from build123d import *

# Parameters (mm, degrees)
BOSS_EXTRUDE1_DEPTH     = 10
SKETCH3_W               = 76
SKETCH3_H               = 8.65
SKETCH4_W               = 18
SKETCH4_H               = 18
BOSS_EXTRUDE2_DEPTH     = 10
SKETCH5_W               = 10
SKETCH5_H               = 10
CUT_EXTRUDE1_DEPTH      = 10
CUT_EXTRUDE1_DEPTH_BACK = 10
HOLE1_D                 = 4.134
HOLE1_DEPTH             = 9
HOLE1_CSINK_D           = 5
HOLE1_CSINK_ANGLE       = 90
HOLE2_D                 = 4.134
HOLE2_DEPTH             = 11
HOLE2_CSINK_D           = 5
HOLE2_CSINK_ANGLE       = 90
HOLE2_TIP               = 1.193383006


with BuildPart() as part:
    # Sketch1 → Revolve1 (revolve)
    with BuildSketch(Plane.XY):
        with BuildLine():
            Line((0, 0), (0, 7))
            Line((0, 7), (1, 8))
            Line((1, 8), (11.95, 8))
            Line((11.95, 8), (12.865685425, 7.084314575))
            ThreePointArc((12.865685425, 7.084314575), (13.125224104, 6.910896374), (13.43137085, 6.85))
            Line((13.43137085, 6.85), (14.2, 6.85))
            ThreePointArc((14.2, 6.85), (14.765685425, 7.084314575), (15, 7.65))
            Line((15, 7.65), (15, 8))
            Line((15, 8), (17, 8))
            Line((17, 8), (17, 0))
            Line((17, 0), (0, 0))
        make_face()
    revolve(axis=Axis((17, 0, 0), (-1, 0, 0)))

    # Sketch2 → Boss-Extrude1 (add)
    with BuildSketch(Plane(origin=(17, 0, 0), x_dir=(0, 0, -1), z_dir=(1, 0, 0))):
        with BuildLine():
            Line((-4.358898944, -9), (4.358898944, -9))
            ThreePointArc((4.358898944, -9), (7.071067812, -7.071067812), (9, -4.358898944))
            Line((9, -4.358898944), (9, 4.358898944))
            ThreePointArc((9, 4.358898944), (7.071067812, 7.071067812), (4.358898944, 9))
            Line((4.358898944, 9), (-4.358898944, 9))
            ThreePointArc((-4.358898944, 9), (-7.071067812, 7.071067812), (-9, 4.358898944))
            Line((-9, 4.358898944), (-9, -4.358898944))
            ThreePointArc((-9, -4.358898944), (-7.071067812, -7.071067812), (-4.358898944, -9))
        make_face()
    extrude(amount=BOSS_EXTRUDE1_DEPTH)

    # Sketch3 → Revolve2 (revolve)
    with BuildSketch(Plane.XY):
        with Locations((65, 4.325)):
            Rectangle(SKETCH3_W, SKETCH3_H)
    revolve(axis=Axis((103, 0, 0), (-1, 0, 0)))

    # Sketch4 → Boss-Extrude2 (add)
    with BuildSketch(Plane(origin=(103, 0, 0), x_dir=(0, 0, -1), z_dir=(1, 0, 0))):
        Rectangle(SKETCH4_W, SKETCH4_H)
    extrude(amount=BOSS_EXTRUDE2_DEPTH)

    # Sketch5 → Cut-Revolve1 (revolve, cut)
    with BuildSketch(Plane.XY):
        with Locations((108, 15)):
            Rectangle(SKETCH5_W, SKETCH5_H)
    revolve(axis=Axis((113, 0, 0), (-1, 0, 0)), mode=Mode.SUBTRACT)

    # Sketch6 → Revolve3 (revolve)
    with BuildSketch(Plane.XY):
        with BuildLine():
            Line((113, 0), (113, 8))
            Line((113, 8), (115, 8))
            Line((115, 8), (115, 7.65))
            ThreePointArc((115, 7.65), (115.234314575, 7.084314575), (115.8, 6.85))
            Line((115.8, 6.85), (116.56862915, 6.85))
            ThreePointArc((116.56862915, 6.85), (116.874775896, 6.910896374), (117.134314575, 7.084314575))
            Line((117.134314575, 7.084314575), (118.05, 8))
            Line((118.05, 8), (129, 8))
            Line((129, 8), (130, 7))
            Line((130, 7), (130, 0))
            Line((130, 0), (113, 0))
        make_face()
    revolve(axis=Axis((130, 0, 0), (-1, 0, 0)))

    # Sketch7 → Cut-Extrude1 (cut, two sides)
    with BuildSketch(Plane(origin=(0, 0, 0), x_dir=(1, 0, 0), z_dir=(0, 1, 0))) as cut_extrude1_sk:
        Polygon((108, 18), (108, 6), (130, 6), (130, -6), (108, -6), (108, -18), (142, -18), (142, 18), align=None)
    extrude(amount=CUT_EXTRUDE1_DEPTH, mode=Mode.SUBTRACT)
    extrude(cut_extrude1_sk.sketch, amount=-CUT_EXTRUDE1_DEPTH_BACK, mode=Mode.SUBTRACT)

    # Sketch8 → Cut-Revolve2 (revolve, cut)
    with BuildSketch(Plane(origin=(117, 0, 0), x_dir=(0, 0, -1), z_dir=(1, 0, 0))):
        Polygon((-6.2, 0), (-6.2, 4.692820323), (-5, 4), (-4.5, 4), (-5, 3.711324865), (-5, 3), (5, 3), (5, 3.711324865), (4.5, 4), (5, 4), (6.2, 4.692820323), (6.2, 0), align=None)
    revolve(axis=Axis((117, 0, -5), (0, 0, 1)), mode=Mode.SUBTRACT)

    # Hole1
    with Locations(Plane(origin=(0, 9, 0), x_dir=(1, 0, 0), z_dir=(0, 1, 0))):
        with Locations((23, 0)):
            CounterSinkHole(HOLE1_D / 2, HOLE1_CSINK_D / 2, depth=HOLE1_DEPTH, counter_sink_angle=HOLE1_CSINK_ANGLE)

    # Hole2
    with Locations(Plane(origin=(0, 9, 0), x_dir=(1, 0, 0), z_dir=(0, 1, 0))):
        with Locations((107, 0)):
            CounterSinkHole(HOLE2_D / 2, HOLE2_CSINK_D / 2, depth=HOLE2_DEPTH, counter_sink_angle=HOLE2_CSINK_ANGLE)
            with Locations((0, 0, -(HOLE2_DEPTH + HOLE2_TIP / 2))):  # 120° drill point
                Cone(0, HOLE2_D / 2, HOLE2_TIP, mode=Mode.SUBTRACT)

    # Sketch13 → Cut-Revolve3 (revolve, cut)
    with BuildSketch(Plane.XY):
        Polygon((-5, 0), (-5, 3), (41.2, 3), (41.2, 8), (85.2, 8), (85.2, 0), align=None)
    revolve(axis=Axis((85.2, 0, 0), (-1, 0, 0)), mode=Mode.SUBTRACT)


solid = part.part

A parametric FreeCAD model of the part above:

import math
import FreeCAD as App
import Part
import Sketcher
from FreeCAD import Vector
Q = App.Units.Quantity


def add_polygon(sketch, points):
    """Adds a closed chain of lines whose ends are joined by coincident constraints."""
    first, n = sketch.GeometryCount, len(points)
    for a, b in zip(points, points[1:] + points[:1]):
        sketch.addGeometry(Part.LineSegment(App.Vector(*a, 0), App.Vector(*b, 0)), False)
    for i in range(n):
        sketch.addConstraint(Sketcher.Constraint("Coincident", first + i, 2, first + (i + 1) % n, 1))

doc = App.newDocument("Part")
params = doc.addObject("Spreadsheet::Sheet", "Params")
for row, (alias, value) in enumerate([
    ("sketch1_radius", "0.8 mm"),
    ("sketch1_width", "17 mm"),
    ("sketch1_width2", "2 mm"),
    ("sketch1_height", "7 mm"),
    ("sketch1_height2", "8 mm"),
    ("revolution_angle", "360 deg"),
    ("sketch2_radius", "10 mm"),
    ("pad1_length", "10 mm"),
    ("sketch3_width", "76 mm"),
    ("sketch3_height", "8.65 mm"),
    ("revolution2_angle", "360 deg"),
    ("sketch4_width", "18 mm"),
    ("pad2_length", "10 mm"),
    ("sketch5_width", "10 mm"),
    ("groove_angle", "360 deg"),
    ("sketch6_radius", "0.8 mm"),
    ("sketch6_width", "17 mm"),
    ("sketch6_width2", "2 mm"),
    ("sketch6_height", "8 mm"),
    ("sketch6_height2", "7 mm"),
    ("revolution3_angle", "360 deg"),
    ("sketch7_width", "22 mm"),
    ("sketch7_width2", "34 mm"),
    ("sketch7_height", "12 mm"),
    ("sketch8_height", "10 mm"),
    ("sketch8_height2", "12.4 mm"),
    ("sketch8_height3", "0.5 mm"),
    ("groove2_angle", "360 deg"),
    ("hole_diameter", "4.134 mm"),
    ("hole_depth", "9 mm"),
    ("hole_csink_diameter", "5 mm"),
    ("hole2_diameter", "4.134 mm"),
    ("hole2_depth", "11 mm"),
    ("hole2_csink_diameter", "5 mm"),
    ("sketch11_width", "44 mm"),
    ("sketch11_height", "3 mm"),
    ("sketch11_height2", "8 mm"),
    ("sketch11_width2", "90.2 mm"),
    ("groove3_angle", "360 deg"),
], start=1):
    params.set(f"A{row}", alias)
    params.set(f"B{row}", "=" + value)
    params.setAlias(f"B{row}", alias)

body = doc.addObject("PartDesign::Body", "Body")

sketch1 = body.newObject("Sketcher::SketchObject", "Sketch")
sketch1.AttachmentSupport = (doc.getObject("XY_Plane"), [""])
sketch1.MapMode = "FlatFace"
sketch1.addGeometry([
    Part.LineSegment(Vector(0, 7, 0), Vector(0, 0, 0)),
    Part.LineSegment(Vector(0, 0, 0), Vector(17, 0, 0)),
    Part.LineSegment(Vector(17, 0, 0), Vector(17, 8, 0)),
    Part.LineSegment(Vector(17, 8, 0), Vector(15, 8, 0)),
    Part.LineSegment(Vector(15, 8, 0), Vector(15, 7.65, 0)),
    Part.ArcOfCircle(Part.Circle(Vector(14.2, 7.65, 0), Vector(0, 0, 1), 0.8), math.radians(-90), math.radians(0)),
    Part.LineSegment(Vector(14.2, 6.85, 0), Vector(13.43, 6.85, 0)),
    Part.ArcOfCircle(Part.Circle(Vector(13.43, 7.65, 0), Vector(0, 0, 1), 0.8), math.radians(-135), math.radians(-90)),
    Part.LineSegment(Vector(12.87, 7.08, 0), Vector(11.95, 8, 0)),
    Part.LineSegment(Vector(11.95, 8, 0), Vector(1, 8, 0)),
    Part.LineSegment(Vector(1, 8, 0), Vector(0, 7, 0)),
], False)
sketch1.addConstraint([
    Sketcher.Constraint("Coincident", 0, 2, 1, 1),
    Sketcher.Constraint("Coincident", 1, 2, 2, 1),
    Sketcher.Constraint("Coincident", 2, 2, 3, 1),
    Sketcher.Constraint("Coincident", 3, 2, 4, 1),
    Sketcher.Constraint("Tangent", 4, 2, 5, 2),
    Sketcher.Constraint("Tangent", 5, 1, 6, 1),
    Sketcher.Constraint("Tangent", 6, 2, 7, 2),
    Sketcher.Constraint("Tangent", 7, 1, 8, 1),
    Sketcher.Constraint("Coincident", 8, 2, 9, 1),
    Sketcher.Constraint("Coincident", 9, 2, 10, 1),
    Sketcher.Constraint("Coincident", 10, 2, 0, 1),
    Sketcher.Constraint("Vertical", 0),
    Sketcher.Constraint("Horizontal", 1),
    Sketcher.Constraint("Vertical", 2),
    Sketcher.Constraint("Horizontal", 3),
    Sketcher.Constraint("Vertical", 4),
    Sketcher.Constraint("Horizontal", 6),
    Sketcher.Constraint("Horizontal", 9),
    Sketcher.Constraint("Coincident", 0, 2, -1, 1),
    Sketcher.Constraint("Equal", 5, 7),
    Sketcher.Constraint("Perpendicular", 8, 10),
    Sketcher.Constraint("Horizontal", 3, 2, 8, 2),
    Sketcher.Constraint("Radius", 5, Q("0.8 mm")),
    Sketcher.Constraint("DistanceX", 1, 1, 1, 2, Q("17 mm")),
    Sketcher.Constraint("DistanceX", 3, 2, 3, 1, Q("2 mm")),
    Sketcher.Constraint("DistanceY", 0, 2, 0, 1, Q("7 mm")),
    Sketcher.Constraint("DistanceY", 2, 1, 2, 2, Q("8 mm")),
    Sketcher.Constraint("Angle", 8, Q("135 deg")),
    Sketcher.Constraint("DistanceX", 9, 2, 9, 1, Q("10.95 mm")),
    Sketcher.Constraint("DistanceY", 4, 2, 4, 1, Q("0.35 mm")),
])
sketch1.setExpression("Constraints[22]", "Params.sketch1_radius")
sketch1.setExpression("Constraints[23]", "Params.sketch1_width")
sketch1.setExpression("Constraints[24]", "Params.sketch1_width2")
sketch1.setExpression("Constraints[25]", "Params.sketch1_height")
sketch1.setExpression("Constraints[26]", "Params.sketch1_height2")
revolution = body.newObject("PartDesign::Revolution", "Revolution")
revolution.Profile = sketch1
revolution.ReferenceAxis = (sketch1, ["H_Axis"])
revolution.setExpression("Angle", "Params.revolution_angle")

sketch2 = body.newObject("Sketcher::SketchObject", "Sketch001")
sketch2.AttachmentSupport = (doc.getObject("YZ_Plane"), [""])
sketch2.MapMode = "FlatFace"
sketch2.AttachmentOffset = App.Placement(Vector(0, 0, 17), App.Rotation())
sketch2.addGeometry([
    Part.LineSegment(Vector(-9, 4, 0), Vector(-9, -4, 0)),
    Part.ArcOfCircle(Part.Circle(Vector(0, 0, 0), Vector(0, 0, 1), 10), math.radians(-154), math.radians(-116)),
    Part.LineSegment(Vector(-4, -9, 0), Vector(4, -9, 0)),
    Part.ArcOfCircle(Part.Circle(Vector(0, 0, 0), Vector(0, 0, 1), 10), math.radians(-64), math.radians(-26)),
    Part.LineSegment(Vector(9, -4, 0), Vector(9, 4, 0)),
    Part.ArcOfCircle(Part.Circle(Vector(0, 0, 0), Vector(0, 0, 1), 10), math.radians(26), math.radians(64)),
    Part.LineSegment(Vector(4, 9, 0), Vector(-4, 9, 0)),
    Part.ArcOfCircle(Part.Circle(Vector(0, 0, 0), Vector(0, 0, 1), 10), math.radians(116), math.radians(154)),
], False)
sketch2.addConstraint([
    Sketcher.Constraint("Coincident", 0, 2, 1, 1),
    Sketcher.Constraint("Coincident", 1, 2, 2, 1),
    Sketcher.Constraint("Coincident", 2, 2, 3, 1),
    Sketcher.Constraint("Coincident", 3, 2, 4, 1),
    Sketcher.Constraint("Coincident", 4, 2, 5, 1),
    Sketcher.Constraint("Coincident", 5, 2, 6, 1),
    Sketcher.Constraint("Coincident", 6, 2, 7, 1),
    Sketcher.Constraint("Coincident", 7, 2, 0, 1),
    Sketcher.Constraint("Vertical", 0),
    Sketcher.Constraint("Horizontal", 2),
    Sketcher.Constraint("Vertical", 4),
    Sketcher.Constraint("Horizontal", 6),
    Sketcher.Constraint("Coincident", 1, 3, -1, 1),
    Sketcher.Constraint("Coincident", 3, 3, -1, 1),
    Sketcher.Constraint("Coincident", 5, 3, -1, 1),
    Sketcher.Constraint("Coincident", 7, 3, -1, 1),
    Sketcher.Constraint("Equal", 1, 3),
    Sketcher.Constraint("Equal", 3, 5),
    Sketcher.Constraint("Equal", 5, 7),
    Sketcher.Constraint("Horizontal", 0, 2, 3, 2),
    Sketcher.Constraint("Vertical", 2, 2, 5, 2),
    Sketcher.Constraint("Equal", 6, 0),
    Sketcher.Constraint("Radius", 1, Q("10 mm")),
    Sketcher.Constraint("DistanceX", 0, 2, -1, 1, Q("9 mm")),
])
sketch2.setExpression("Constraints[22]", "Params.sketch2_radius")
pad1 = body.newObject("PartDesign::Pad", "Pad")
pad1.Profile = sketch2
pad1.setExpression("Length", "Params.pad1_length")

sketch3 = body.newObject("Sketcher::SketchObject", "Sketch002")
sketch3.AttachmentSupport = (doc.getObject("XY_Plane"), [""])
sketch3.MapMode = "FlatFace"
add_polygon(sketch3, [(27, 9), (27, 0), (103, 0), (103, 9)])
sketch3.addConstraint([
    Sketcher.Constraint("Vertical", 0),
    Sketcher.Constraint("Horizontal", 1),
    Sketcher.Constraint("Vertical", 2),
    Sketcher.Constraint("Horizontal", 3),
    Sketcher.Constraint("PointOnObject", 0, 2, -1),
    Sketcher.Constraint("DistanceX", 1, 1, 1, 2, Q("76 mm")),
    Sketcher.Constraint("DistanceX", -1, 1, 0, 2, Q("27 mm")),
    Sketcher.Constraint("DistanceY", 0, 2, 0, 1, Q("8.65 mm")),
])
sketch3.setExpression("Constraints[9]", "Params.sketch3_width")
sketch3.setExpression("Constraints[11]", "Params.sketch3_height")
revolution2 = body.newObject("PartDesign::Revolution", "Revolution001")
revolution2.Profile = sketch3
revolution2.ReferenceAxis = (sketch3, ["H_Axis"])
revolution2.setExpression("Angle", "Params.revolution2_angle")

sketch4 = body.newObject("Sketcher::SketchObject", "Sketch003")
sketch4.AttachmentSupport = (doc.getObject("YZ_Plane"), [""])
sketch4.MapMode = "FlatFace"
sketch4.AttachmentOffset = App.Placement(Vector(0, 0, 103), App.Rotation())
add_polygon(sketch4, [(9, 9), (-9, 9), (-9, -9), (9, -9)])
sketch4.addConstraint([
    Sketcher.Constraint("Horizontal", 0),
    Sketcher.Constraint("Vertical", 1),
    Sketcher.Constraint("Horizontal", 2),
    Sketcher.Constraint("Vertical", 3),
    Sketcher.Constraint("Symmetric", 0, 2, 2, 2, -1, 1),
    Sketcher.Constraint("Equal", 2, 1),
    Sketcher.Constraint("DistanceX", 0, 2, 0, 1, Q("18 mm")),
])
sketch4.setExpression("Constraints[10]", "Params.sketch4_width")
pad2 = body.newObject("PartDesign::Pad", "Pad001")
pad2.Profile = sketch4
pad2.setExpression("Length", "Params.pad2_length")

sketch5 = body.newObject("Sketcher::SketchObject", "Sketch004")
sketch5.AttachmentSupport = (doc.getObject("XY_Plane"), [""])
sketch5.MapMode = "FlatFace"
add_polygon(sketch5, [(103, 20), (103, 10), (113, 10), (113, 20)])
sketch5.addConstraint([
    Sketcher.Constraint("Vertical", 0),
    Sketcher.Constraint("Horizontal", 1),
    Sketcher.Constraint("Vertical", 2),
    Sketcher.Constraint("Horizontal", 3),
    Sketcher.Constraint("Equal", 3, 0),
    Sketcher.Constraint("DistanceX", 1, 1, 1, 2, Q("10 mm")),
    Sketcher.Constraint("DistanceX", -1, 1, 0, 2, Q("103 mm")),
    Sketcher.Constraint("DistanceY", -1, 1, 0, 2, Q("10 mm")),
])
sketch5.setExpression("Constraints[9]", "Params.sketch5_width")
groove = body.newObject("PartDesign::Groove", "Groove")
groove.Profile = sketch5
groove.ReferenceAxis = (sketch5, ["H_Axis"])
groove.setExpression("Angle", "Params.groove_angle")

sketch6 = body.newObject("Sketcher::SketchObject", "Sketch005")
sketch6.AttachmentSupport = (doc.getObject("XY_Plane"), [""])
sketch6.MapMode = "FlatFace"
sketch6.addGeometry([
    Part.LineSegment(Vector(113, 8, 0), Vector(113, 0, 0)),
    Part.LineSegment(Vector(113, 0, 0), Vector(130, 0, 0)),
    Part.LineSegment(Vector(130, 0, 0), Vector(130, 7, 0)),
    Part.LineSegment(Vector(130, 7, 0), Vector(129, 8, 0)),
    Part.LineSegment(Vector(129, 8, 0), Vector(118.05, 8, 0)),
    Part.LineSegment(Vector(118.05, 8, 0), Vector(117.13, 7.08, 0)),
    Part.ArcOfCircle(Part.Circle(Vector(116.57, 7.65, 0), Vector(0, 0, 1), 0.8), math.radians(-90), math.radians(-45)),
    Part.LineSegment(Vector(116.57, 6.85, 0), Vector(115.8, 6.85, 0)),
    Part.ArcOfCircle(Part.Circle(Vector(115.8, 7.65, 0), Vector(0, 0, 1), 0.8), math.radians(180), math.radians(270)),
    Part.LineSegment(Vector(115, 7.65, 0), Vector(115, 8, 0)),
    Part.LineSegment(Vector(115, 8, 0), Vector(113, 8, 0)),
], False)
sketch6.addConstraint([
    Sketcher.Constraint("Coincident", 0, 2, 1, 1),
    Sketcher.Constraint("Coincident", 1, 2, 2, 1),
    Sketcher.Constraint("Coincident", 2, 2, 3, 1),
    Sketcher.Constraint("Coincident", 3, 2, 4, 1),
    Sketcher.Constraint("Coincident", 4, 2, 5, 1),
    Sketcher.Constraint("Tangent", 5, 2, 6, 2),
    Sketcher.Constraint("Tangent", 6, 1, 7, 1),
    Sketcher.Constraint("Tangent", 7, 2, 8, 2),
    Sketcher.Constraint("Tangent", 8, 1, 9, 1),
    Sketcher.Constraint("Coincident", 9, 2, 10, 1),
    Sketcher.Constraint("Coincident", 10, 2, 0, 1),
    Sketcher.Constraint("Vertical", 0),
    Sketcher.Constraint("Horizontal", 1),
    Sketcher.Constraint("Vertical", 2),
    Sketcher.Constraint("Horizontal", 4),
    Sketcher.Constraint("Horizontal", 7),
    Sketcher.Constraint("Vertical", 9),
    Sketcher.Constraint("Horizontal", 10),
    Sketcher.Constraint("Equal", 6, 8),
    Sketcher.Constraint("PointOnObject", 0, 2, -1),
    Sketcher.Constraint("Perpendicular", 3, 5),
    Sketcher.Constraint("Horizontal", 4, 2, 9, 2),
    Sketcher.Constraint("Radius", 6, Q("0.8 mm")),
    Sketcher.Constraint("DistanceX", 1, 1, 1, 2, Q("17 mm")),
    Sketcher.Constraint("DistanceX", 10, 2, 10, 1, Q("2 mm")),
    Sketcher.Constraint("DistanceY", 0, 2, 0, 1, Q("8 mm")),
    Sketcher.Constraint("DistanceY", 2, 1, 2, 2, Q("7 mm")),
    Sketcher.Constraint("Angle", 3, Q("135 deg")),
    Sketcher.Constraint("DistanceX", -1, 1, 0, 2, Q("113 mm")),
    Sketcher.Constraint("DistanceX", 4, 2, 4, 1, Q("10.95 mm")),
    Sketcher.Constraint("DistanceY", 9, 1, 9, 2, Q("0.35 mm")),
])
sketch6.setExpression("Constraints[22]", "Params.sketch6_radius")
sketch6.setExpression("Constraints[23]", "Params.sketch6_width")
sketch6.setExpression("Constraints[24]", "Params.sketch6_width2")
sketch6.setExpression("Constraints[25]", "Params.sketch6_height")
sketch6.setExpression("Constraints[26]", "Params.sketch6_height2")
revolution3 = body.newObject("PartDesign::Revolution", "Revolution002")
revolution3.Profile = sketch6
revolution3.ReferenceAxis = (sketch6, ["H_Axis"])
revolution3.setExpression("Angle", "Params.revolution3_angle")

sketch7 = body.newObject("Sketcher::SketchObject", "Sketch006")
sketch7.AttachmentSupport = (doc.getObject("XZ_Plane"), [""])
sketch7.MapMode = "FlatFace"
add_polygon(sketch7, [(108, -18), (108, -6), (130, -6), (130, 6), (108, 6), (108, 18), (142, 18), (142, -18)])
sketch7.addConstraint([
    Sketcher.Constraint("Vertical", 0),
    Sketcher.Constraint("Horizontal", 1),
    Sketcher.Constraint("Vertical", 2),
    Sketcher.Constraint("Horizontal", 3),
    Sketcher.Constraint("Vertical", 4),
    Sketcher.Constraint("Horizontal", 5),
    Sketcher.Constraint("Vertical", 6),
    Sketcher.Constraint("Horizontal", 7),
    Sketcher.Constraint("Symmetric", 0, 2, 3, 2, -1),
    Sketcher.Constraint("Equal", 0, 2),
    Sketcher.Constraint("Equal", 2, 4),
    Sketcher.Constraint("DistanceX", 1, 1, 1, 2, Q("22 mm")),
    Sketcher.Constraint("DistanceX", 5, 1, 5, 2, Q("34 mm")),
    Sketcher.Constraint("DistanceY", 0, 1, 0, 2, Q("12 mm")),
    Sketcher.Constraint("DistanceX", -1, 1, 0, 2, Q("108 mm")),
])
sketch7.setExpression("Constraints[19]", "Params.sketch7_width")
sketch7.setExpression("Constraints[20]", "Params.sketch7_width2")
sketch7.setExpression("Constraints[21]", "Params.sketch7_height")
pocket1 = body.newObject("PartDesign::Pocket", "Pocket")
pocket1.Profile = sketch7
pocket1.Type = "ThroughAll"
pocket1.Midplane = True

sketch8 = body.newObject("Sketcher::SketchObject", "Sketch007")
sketch8.AttachmentSupport = (doc.getObject("YZ_Plane"), [""])
sketch8.MapMode = "FlatFace"
sketch8.AttachmentOffset = App.Placement(Vector(0, 0, 117), App.Rotation())
add_polygon(sketch8, [(4.7, 6.2), (0, 6.2), (0, -6.2), (4.7, -6.2), (4, -5), (4, -4.5), (3.7, -5), (3, -5), (3, 5), (3.7, 5), (4, 4.5), (4, 5)])
sketch8.addConstraint([
    Sketcher.Constraint("Horizontal", 0),
    Sketcher.Constraint("Vertical", 1),
    Sketcher.Constraint("Horizontal", 2),
    Sketcher.Constraint("Vertical", 4),
    Sketcher.Constraint("Horizontal", 6),
    Sketcher.Constraint("Vertical", 7),
    Sketcher.Constraint("Horizontal", 8),
    Sketcher.Constraint("Vertical", 10),
    Sketcher.Constraint("Symmetric", 0, 2, 1, 2, -1, 1),
    Sketcher.Constraint("Symmetric", 5, 2, 8, 2, -1),
    Sketcher.Constraint("Symmetric", 4, 2, 9, 2, -1),
    Sketcher.Constraint("Parallel", 3, 9),
    Sketcher.Constraint("Parallel", 5, 11),
    Sketcher.Constraint("Horizontal", 3, 2, 5, 2),
    Sketcher.Constraint("Horizontal", 8, 2, 10, 2),
    Sketcher.Constraint("DistanceY", 7, 1, 7, 2, Q("10 mm")),
    Sketcher.Constraint("Angle", 3, Q("120 deg")),
    Sketcher.Constraint("DistanceY", 1, 2, 1, 1, Q("12.4 mm")),
    Sketcher.Constraint("DistanceY", 4, 1, 4, 2, Q("0.5 mm")),
    Sketcher.Constraint("DistanceX", -1, 1, 3, 2, Q("4 mm")),
    Sketcher.Constraint("DistanceX", -1, 1, 6, 2, Q("3 mm")),
])
sketch8.setExpression("Constraints[27]", "Params.sketch8_height")
sketch8.setExpression("Constraints[29]", "Params.sketch8_height2")
sketch8.setExpression("Constraints[30]", "Params.sketch8_height3")
groove2 = body.newObject("PartDesign::Groove", "Groove001")
groove2.Profile = sketch8
groove2.ReferenceAxis = (sketch8, ["V_Axis"])
groove2.setExpression("Angle", "Params.groove2_angle")

sketch9 = body.newObject("Sketcher::SketchObject", "Sketch008")
sketch9.AttachmentSupport = (doc.getObject("XZ_Plane"), [""])
sketch9.MapMode = "FlatFace"
sketch9.AttachmentOffset = App.Placement(Vector(0, 0, -9), App.Rotation())
sketch9.addGeometry(Part.Circle(Vector(23, 0, 0), Vector(0, 0, 1), 2.1), False)
sketch9.addConstraint([
    Sketcher.Constraint("PointOnObject", 0, 3, -1),
    Sketcher.Constraint("Diameter", 0, Q("4.134 mm")),
    Sketcher.Constraint("DistanceX", -1, 1, 0, 3, Q("23 mm")),
])
doc.recompute()
hole = body.newObject("PartDesign::Hole", "Hole")
hole.Profile = sketch9
hole.ThreadType = "None"
hole.setExpression("Diameter", "Params.hole_diameter")
hole.DepthType = "Dimension"
hole.setExpression("Depth", "Params.hole_depth")
hole.DrillPoint = "Flat"
hole.HoleCutType = "Countersink"
hole.setExpression("HoleCutDiameter", "Params.hole_csink_diameter")
hole.HoleCutCountersinkAngle = 90
hole.Reversed = True

sketch10 = body.newObject("Sketcher::SketchObject", "Sketch009")
sketch10.AttachmentSupport = (doc.getObject("XZ_Plane"), [""])
sketch10.MapMode = "FlatFace"
sketch10.AttachmentOffset = App.Placement(Vector(0, 0, -9), App.Rotation())
sketch10.addGeometry(Part.Circle(Vector(107, 0, 0), Vector(0, 0, 1), 2.1), False)
sketch10.addConstraint([
    Sketcher.Constraint("PointOnObject", 0, 3, -1),
    Sketcher.Constraint("Diameter", 0, Q("4.134 mm")),
    Sketcher.Constraint("DistanceX", -1, 1, 0, 3, Q("107 mm")),
])
doc.recompute()
hole2 = body.newObject("PartDesign::Hole", "Hole001")
hole2.Profile = sketch10
hole2.ThreadType = "None"
hole2.setExpression("Diameter", "Params.hole2_diameter")
hole2.DepthType = "Dimension"
hole2.setExpression("Depth", "Params.hole2_depth")
hole2.DrillPoint = "Angled"
hole2.DrillPointAngle = 120
hole2.HoleCutType = "Countersink"
hole2.setExpression("HoleCutDiameter", "Params.hole2_csink_diameter")
hole2.HoleCutCountersinkAngle = 90
hole2.Reversed = True

sketch11 = body.newObject("Sketcher::SketchObject", "Sketch010")
sketch11.AttachmentSupport = (doc.getObject("XY_Plane"), [""])
sketch11.MapMode = "FlatFace"
add_polygon(sketch11, [(-5, 3), (-5, 0), (85.2, 0), (85.2, 8), (41.2, 8), (41.2, 3)])
sketch11.addConstraint([
    Sketcher.Constraint("Vertical", 0),
    Sketcher.Constraint("Horizontal", 1),
    Sketcher.Constraint("Vertical", 2),
    Sketcher.Constraint("Horizontal", 3),
    Sketcher.Constraint("Vertical", 4),
    Sketcher.Constraint("Horizontal", 5),
    Sketcher.Constraint("PointOnObject", 0, 2, -1),
    Sketcher.Constraint("DistanceX", 3, 2, 3, 1, Q("44 mm")),
    Sketcher.Constraint("DistanceY", 0, 2, 0, 1, Q("3 mm")),
    Sketcher.Constraint("DistanceY", 2, 1, 2, 2, Q("8 mm")),
    Sketcher.Constraint("DistanceX", 1, 1, 1, 2, Q("90.2 mm")),
    Sketcher.Constraint("DistanceX", 0, 2, -1, 1, Q("5 mm")),
])
sketch11.setExpression("Constraints[13]", "Params.sketch11_width")
sketch11.setExpression("Constraints[14]", "Params.sketch11_height")
sketch11.setExpression("Constraints[15]", "Params.sketch11_height2")
sketch11.setExpression("Constraints[16]", "Params.sketch11_width2")
groove3 = body.newObject("PartDesign::Groove", "Groove002")
groove3.Profile = sketch11
groove3.ReferenceAxis = (sketch11, ["H_Axis"])
groove3.setExpression("Angle", "Params.groove3_angle")

doc.recompute()
